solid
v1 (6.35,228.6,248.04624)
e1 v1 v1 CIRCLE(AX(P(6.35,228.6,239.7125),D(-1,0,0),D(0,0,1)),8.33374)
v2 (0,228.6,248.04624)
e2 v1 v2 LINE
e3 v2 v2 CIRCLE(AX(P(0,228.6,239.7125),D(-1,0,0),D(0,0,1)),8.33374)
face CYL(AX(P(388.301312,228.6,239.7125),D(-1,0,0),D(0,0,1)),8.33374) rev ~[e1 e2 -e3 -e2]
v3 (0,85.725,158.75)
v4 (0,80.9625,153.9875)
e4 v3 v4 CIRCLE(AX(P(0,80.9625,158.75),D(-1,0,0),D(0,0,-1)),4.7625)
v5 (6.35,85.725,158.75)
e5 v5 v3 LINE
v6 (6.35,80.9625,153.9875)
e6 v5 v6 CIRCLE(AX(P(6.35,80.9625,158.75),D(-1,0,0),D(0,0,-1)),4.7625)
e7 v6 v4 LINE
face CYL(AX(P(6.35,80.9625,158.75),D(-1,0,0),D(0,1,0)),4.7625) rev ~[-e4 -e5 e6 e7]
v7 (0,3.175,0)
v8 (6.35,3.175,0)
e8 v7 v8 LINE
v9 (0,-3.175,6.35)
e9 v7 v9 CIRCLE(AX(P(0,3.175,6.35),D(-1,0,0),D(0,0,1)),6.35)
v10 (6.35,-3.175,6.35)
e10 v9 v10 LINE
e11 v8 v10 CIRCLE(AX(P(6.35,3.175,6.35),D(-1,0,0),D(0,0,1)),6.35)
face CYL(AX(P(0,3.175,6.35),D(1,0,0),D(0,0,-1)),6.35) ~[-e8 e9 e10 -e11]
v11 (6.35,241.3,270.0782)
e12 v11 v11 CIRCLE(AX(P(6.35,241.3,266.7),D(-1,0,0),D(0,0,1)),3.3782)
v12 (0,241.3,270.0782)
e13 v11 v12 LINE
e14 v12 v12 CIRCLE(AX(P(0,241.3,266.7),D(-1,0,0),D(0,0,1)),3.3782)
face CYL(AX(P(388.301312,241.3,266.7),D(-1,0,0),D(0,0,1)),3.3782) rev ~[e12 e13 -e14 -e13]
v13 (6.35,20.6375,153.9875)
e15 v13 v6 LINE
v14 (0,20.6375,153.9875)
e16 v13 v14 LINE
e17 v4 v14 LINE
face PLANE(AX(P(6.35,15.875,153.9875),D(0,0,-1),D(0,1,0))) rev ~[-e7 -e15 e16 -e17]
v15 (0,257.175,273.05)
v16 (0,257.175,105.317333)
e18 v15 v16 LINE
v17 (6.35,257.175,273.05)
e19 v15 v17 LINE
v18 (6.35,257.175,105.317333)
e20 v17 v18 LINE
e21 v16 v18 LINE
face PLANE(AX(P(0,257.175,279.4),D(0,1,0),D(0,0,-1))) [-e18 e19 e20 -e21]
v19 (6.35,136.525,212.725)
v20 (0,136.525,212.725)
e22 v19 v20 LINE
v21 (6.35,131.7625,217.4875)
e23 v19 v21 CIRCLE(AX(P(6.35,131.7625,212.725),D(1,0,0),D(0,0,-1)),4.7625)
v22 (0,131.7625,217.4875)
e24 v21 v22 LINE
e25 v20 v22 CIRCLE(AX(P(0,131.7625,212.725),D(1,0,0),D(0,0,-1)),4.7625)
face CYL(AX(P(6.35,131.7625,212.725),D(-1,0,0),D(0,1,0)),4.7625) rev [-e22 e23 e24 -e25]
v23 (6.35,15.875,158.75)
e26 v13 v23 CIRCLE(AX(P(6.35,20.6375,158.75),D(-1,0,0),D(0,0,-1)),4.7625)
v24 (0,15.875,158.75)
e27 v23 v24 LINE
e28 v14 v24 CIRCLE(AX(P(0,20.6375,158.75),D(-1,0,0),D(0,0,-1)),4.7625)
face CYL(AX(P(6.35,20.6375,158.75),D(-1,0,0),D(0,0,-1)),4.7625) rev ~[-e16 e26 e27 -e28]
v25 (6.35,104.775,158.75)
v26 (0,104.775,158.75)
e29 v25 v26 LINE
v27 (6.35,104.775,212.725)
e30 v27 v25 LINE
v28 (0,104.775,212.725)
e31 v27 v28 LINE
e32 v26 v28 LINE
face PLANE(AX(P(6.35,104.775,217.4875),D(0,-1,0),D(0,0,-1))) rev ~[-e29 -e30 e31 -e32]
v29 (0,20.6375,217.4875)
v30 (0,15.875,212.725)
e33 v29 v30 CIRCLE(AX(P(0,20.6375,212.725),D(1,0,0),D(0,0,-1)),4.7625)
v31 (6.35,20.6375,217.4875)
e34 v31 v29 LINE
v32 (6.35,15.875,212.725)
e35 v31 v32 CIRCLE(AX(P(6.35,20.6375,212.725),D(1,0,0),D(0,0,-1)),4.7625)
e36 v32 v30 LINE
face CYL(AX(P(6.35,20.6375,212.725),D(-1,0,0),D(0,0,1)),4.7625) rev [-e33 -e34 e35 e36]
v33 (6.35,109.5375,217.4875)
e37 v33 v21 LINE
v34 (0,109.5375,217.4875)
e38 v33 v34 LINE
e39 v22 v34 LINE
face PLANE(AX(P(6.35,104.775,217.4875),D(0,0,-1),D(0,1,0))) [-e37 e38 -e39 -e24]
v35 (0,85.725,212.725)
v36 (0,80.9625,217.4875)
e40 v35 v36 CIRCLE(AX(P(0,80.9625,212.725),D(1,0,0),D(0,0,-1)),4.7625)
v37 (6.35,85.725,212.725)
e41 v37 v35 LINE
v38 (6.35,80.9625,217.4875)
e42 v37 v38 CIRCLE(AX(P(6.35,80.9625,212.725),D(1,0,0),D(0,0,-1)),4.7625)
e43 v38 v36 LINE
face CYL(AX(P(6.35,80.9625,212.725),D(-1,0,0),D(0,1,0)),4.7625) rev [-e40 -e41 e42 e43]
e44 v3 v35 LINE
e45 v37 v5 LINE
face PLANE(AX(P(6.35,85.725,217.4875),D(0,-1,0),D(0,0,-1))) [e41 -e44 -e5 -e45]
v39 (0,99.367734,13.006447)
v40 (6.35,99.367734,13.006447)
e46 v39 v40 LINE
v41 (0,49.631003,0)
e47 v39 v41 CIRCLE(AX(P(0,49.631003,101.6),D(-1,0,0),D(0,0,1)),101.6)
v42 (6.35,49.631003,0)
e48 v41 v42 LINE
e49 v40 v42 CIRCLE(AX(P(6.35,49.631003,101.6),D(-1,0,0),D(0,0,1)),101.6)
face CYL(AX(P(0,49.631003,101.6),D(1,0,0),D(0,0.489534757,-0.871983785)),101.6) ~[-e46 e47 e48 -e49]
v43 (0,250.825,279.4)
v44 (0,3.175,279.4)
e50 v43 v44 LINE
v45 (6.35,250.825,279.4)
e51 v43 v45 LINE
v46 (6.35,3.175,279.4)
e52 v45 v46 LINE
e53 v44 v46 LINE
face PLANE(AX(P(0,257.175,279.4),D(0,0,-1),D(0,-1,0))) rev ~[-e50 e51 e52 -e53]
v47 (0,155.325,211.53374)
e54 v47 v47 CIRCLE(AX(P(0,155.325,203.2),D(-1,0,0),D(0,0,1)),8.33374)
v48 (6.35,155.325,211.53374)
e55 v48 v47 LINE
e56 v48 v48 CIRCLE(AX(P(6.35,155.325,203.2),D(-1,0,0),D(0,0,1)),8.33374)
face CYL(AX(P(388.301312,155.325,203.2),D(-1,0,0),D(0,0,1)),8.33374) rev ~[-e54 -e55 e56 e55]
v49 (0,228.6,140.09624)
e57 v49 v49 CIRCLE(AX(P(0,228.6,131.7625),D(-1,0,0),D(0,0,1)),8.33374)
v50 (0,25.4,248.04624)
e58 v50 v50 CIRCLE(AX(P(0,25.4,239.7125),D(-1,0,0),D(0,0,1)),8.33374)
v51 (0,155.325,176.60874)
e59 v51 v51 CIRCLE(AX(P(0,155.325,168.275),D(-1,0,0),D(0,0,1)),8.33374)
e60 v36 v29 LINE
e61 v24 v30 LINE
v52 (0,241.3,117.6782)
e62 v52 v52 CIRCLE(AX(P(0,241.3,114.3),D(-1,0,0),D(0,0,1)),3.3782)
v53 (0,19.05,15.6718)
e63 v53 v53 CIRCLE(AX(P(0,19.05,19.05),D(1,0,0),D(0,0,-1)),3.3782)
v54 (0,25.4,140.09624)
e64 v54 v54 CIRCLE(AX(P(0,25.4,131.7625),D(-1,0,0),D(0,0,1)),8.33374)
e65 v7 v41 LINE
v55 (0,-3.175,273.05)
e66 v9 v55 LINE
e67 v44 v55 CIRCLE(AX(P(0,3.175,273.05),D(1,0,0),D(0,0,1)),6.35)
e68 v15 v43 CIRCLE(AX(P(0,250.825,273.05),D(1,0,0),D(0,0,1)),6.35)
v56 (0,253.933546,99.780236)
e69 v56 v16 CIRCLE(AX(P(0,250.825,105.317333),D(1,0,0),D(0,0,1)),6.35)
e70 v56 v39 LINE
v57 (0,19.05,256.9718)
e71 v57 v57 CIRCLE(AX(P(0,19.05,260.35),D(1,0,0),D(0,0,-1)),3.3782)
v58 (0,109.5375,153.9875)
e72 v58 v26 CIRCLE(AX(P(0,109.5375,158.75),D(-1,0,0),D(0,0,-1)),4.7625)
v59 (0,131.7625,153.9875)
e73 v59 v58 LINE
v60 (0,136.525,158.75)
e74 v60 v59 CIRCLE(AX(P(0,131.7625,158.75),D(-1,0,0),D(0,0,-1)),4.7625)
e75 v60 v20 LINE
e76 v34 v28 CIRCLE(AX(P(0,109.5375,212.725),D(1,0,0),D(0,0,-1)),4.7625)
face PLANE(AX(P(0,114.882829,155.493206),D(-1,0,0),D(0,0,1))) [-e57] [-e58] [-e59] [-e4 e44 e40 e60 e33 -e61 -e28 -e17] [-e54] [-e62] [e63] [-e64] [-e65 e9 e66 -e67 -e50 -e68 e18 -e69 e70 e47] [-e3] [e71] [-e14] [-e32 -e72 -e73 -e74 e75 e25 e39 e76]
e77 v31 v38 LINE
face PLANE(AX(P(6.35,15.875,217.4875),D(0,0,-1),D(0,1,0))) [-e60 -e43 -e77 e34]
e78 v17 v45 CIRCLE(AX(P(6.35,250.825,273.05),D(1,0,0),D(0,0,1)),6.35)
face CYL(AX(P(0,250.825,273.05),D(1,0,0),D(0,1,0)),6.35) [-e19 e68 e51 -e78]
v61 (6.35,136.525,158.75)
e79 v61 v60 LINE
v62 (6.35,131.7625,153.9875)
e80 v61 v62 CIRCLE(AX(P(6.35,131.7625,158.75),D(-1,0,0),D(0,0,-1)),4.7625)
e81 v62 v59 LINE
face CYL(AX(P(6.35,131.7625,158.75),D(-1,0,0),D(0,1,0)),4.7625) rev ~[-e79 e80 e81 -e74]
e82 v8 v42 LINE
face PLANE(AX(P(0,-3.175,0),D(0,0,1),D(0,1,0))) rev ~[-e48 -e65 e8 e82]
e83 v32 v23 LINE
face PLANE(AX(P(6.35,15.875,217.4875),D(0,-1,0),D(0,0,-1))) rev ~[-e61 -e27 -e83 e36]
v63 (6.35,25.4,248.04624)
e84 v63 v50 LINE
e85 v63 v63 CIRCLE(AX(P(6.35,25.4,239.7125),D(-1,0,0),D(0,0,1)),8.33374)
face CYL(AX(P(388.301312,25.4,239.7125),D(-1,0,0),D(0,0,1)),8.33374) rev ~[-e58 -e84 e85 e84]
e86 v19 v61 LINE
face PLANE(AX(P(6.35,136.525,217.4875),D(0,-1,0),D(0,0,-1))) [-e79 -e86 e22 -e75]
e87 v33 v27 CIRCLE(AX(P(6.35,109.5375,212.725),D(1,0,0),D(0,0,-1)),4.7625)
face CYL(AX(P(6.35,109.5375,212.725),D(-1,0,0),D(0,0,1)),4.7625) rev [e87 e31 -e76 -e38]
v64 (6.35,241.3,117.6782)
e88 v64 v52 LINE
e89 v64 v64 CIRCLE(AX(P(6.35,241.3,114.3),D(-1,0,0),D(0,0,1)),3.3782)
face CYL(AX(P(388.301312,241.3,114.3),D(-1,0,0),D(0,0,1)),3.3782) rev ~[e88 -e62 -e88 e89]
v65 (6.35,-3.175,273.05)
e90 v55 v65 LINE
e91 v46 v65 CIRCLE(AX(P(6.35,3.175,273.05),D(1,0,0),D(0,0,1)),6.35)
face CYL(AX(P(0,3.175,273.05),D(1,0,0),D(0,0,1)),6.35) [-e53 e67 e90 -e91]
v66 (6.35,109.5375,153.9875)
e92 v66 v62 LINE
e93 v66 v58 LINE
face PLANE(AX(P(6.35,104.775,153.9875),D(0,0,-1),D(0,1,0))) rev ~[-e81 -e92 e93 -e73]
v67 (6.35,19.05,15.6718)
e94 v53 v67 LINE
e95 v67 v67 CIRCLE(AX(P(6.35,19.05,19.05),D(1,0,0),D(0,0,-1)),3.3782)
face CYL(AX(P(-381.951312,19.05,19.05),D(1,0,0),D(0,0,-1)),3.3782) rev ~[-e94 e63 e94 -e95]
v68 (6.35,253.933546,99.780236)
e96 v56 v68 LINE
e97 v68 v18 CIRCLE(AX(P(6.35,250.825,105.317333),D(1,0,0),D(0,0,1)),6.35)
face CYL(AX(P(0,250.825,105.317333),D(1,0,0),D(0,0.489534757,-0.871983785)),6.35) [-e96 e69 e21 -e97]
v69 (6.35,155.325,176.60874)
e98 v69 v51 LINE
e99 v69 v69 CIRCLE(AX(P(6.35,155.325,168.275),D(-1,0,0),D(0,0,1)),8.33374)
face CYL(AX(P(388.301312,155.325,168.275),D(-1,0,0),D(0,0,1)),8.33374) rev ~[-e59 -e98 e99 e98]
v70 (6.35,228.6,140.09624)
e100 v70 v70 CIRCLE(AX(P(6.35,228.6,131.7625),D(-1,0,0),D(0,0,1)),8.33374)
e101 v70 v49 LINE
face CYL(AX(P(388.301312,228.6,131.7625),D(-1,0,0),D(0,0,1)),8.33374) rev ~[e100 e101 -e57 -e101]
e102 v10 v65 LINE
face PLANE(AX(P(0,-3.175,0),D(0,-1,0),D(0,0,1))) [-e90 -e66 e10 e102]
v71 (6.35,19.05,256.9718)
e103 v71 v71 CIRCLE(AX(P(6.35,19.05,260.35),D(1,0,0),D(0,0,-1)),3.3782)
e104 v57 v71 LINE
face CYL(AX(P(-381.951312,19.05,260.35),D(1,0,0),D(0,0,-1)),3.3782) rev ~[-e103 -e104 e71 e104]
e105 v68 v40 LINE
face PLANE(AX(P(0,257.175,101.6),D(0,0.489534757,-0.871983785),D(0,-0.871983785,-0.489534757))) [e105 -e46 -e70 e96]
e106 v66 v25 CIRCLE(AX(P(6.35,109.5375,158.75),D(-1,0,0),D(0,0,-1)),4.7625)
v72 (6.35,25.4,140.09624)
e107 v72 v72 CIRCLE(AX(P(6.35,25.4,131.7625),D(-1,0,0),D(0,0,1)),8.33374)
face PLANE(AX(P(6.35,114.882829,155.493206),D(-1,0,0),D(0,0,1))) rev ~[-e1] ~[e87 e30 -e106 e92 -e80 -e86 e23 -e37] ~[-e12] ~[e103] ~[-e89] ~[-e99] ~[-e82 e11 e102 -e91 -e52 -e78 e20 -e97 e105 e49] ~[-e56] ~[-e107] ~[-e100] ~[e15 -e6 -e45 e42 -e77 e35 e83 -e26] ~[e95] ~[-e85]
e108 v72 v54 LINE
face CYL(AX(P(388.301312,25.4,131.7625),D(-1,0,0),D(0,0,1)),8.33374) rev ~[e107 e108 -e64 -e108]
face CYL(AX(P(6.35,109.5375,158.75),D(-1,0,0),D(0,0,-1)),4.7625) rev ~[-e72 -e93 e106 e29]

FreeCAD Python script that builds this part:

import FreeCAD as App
import Part
import Sketcher
from FreeCAD import Vector
Q = App.Units.Quantity


def edges_at(feature, points):
    """Names of the edges that pass closest to the given points."""
    edges = feature.Shape.Edges
    near = lambda p: min(range(len(edges)), key=lambda i: edges[i].distToShape(Part.Vertex(*p))[0])
    return sorted({f"Edge{near(p) + 1}" for p in points})


def add_polygon(sketch, points):
    """Adds a closed chain of lines whose ends are joined by coincident constraints."""
    first, n = sketch.GeometryCount, len(points)
    for a, b in zip(points, points[1:] + points[:1]):
        sketch.addGeometry(Part.LineSegment(App.Vector(*a, 0), App.Vector(*b, 0)), False)
    for i in range(n):
        sketch.addConstraint(Sketcher.Constraint("Coincident", first + i, 2, first + (i + 1) % n, 1))

doc = App.newDocument("Part")
body = doc.addObject("PartDesign::Body", "Body")

# Sketch on YZ plane
sketch1 = body.newObject("Sketcher::SketchObject", "Sketch")
sketch1.AttachmentSupport = (doc.getObject("YZ_Plane"), [""])
sketch1.MapMode = "FlatFace"
add_polygon(sketch1, [(257, 279), (-3, 279), (-3, 0), (76, 0), (257, 102)])  # lines 0-4
sketch1.addConstraint(Sketcher.Constraint("Horizontal", 0))
sketch1.addConstraint(Sketcher.Constraint("Vertical", 1))
sketch1.addConstraint(Sketcher.Constraint("Horizontal", 2))
sketch1.addConstraint(Sketcher.Constraint("Vertical", 4))
sketch1.addConstraint(Sketcher.Constraint("PointOnObject", 1, 2, -1))
sketch1.addConstraint(Sketcher.Constraint("DistanceY", 1, 2, 1, 1, Q("11 in")))
sketch1.addConstraint(Sketcher.Constraint("DistanceY", 4, 1, 4, 2, Q("7 in")))
sketch1.addConstraint(Sketcher.Constraint("DistanceX", -1, 1, 2, 2, Q("3 in")))
sketch1.addConstraint(Sketcher.Constraint("DistanceX", 0, 2, 0, 1, Q("10.25 in")))
sketch1.addConstraint(Sketcher.Constraint("DistanceX", 2, 1, 2, 2, Q("3.125 in")))
pad1 = body.newObject("PartDesign::Pad", "Pad")
pad1.Profile = sketch1
pad1.Length = Q("0.25 in")

# Sketch on YZ plane
sketch2 = body.newObject("Sketcher::SketchObject", "Sketch001")
sketch2.AttachmentSupport = (doc.getObject("YZ_Plane"), [""])
sketch2.MapMode = "FlatFace"
sketch2.AttachmentOffset = App.Placement(Vector(0, 0, 0.25 * 25.4), App.Rotation())
sketch2.addGeometry(Part.Circle(Vector(241.3, 266.7, 0), Vector(0, 0, 1), 3.4), False)
sketch2.addGeometry(Part.Circle(Vector(241.3, 114.3, 0), Vector(0, 0, 1), 3.4), False)
sketch2.addConstraint(Sketcher.Constraint("Equal", 0, 1))
sketch2.addConstraint(Sketcher.Constraint("Vertical", 0, 3, 1, 3))
sketch2.addConstraint(Sketcher.Constraint("Diameter", 0, Q("0.266 in")))
sketch2.addConstraint(Sketcher.Constraint("DistanceY", 1, 3, 0, 3, Q("6 in")))
sketch2.addConstraint(Sketcher.Constraint("DistanceX", -1, 1, 0, 3, Q("9.5 in")))
sketch2.addConstraint(Sketcher.Constraint("DistanceY", -1, 1, 0, 3, Q("10.5 in")))
doc.recompute()
hole = body.newObject("PartDesign::Hole", "Hole")
hole.Profile = sketch2
hole.ThreadType = "None"
hole.Diameter = Q("0.266 in")
hole.DepthType = "ThroughAll"

# Sketch on YZ plane
sketch3 = body.newObject("Sketcher::SketchObject", "Sketch002")
sketch3.AttachmentSupport = (doc.getObject("YZ_Plane"), [""])
sketch3.MapMode = "FlatFace"
sketch3.addGeometry(Part.Circle(Vector(19.1, 19.1, 0), Vector(0, 0, 1), 3.4), False)
sketch3.addGeometry(Part.Circle(Vector(19.1, 260.4, 0), Vector(0, 0, 1), 3.4), False)
sketch3.addConstraint(Sketcher.Constraint("Equal", 0, 1))
sketch3.addConstraint(Sketcher.Constraint("Vertical", 0, 3, 1, 3))
sketch3.addConstraint(Sketcher.Constraint("Diameter", 0, Q("0.266 in")))
sketch3.addConstraint(Sketcher.Constraint("DistanceY", 0, 3, 1, 3, Q("9.5 in")))
sketch3.addConstraint(Sketcher.Constraint("DistanceX", -1, 1, 0, 3, Q("0.75 in")))
sketch3.addConstraint(Sketcher.Constraint("DistanceY", -1, 1, 0, 3, Q("0.75 in")))
doc.recompute()
hole2 = body.newObject("PartDesign::Hole", "Hole001")
hole2.Profile = sketch3
hole2.ThreadType = "None"
hole2.Diameter = Q("0.266 in")
hole2.DepthType = "ThroughAll"
hole2.Reversed = True
doc.recompute()

fillet = body.newObject("PartDesign::Fillet", "Fillet")
fillet.Base = (hole2, edges_at(hole2, [(3.175, 76.2, 0)]))
fillet.Radius = Q("4 in")

# Sketch on YZ plane
sketch4 = body.newObject("Sketcher::SketchObject", "Sketch003")
sketch4.AttachmentSupport = (doc.getObject("YZ_Plane"), [""])
sketch4.MapMode = "FlatFace"
sketch4.AttachmentOffset = App.Placement(Vector(0, 0, 0.25 * 25.4), App.Rotation())
add_polygon(sketch4, [(86, 217), (16, 217), (16, 154), (86, 154)])  # lines 0-3
add_polygon(sketch4, [(137, 217), (105, 217), (105, 154), (137, 154)])  # lines 4-7
sketch4.addConstraint(Sketcher.Constraint("Horizontal", 0))
sketch4.addConstraint(Sketcher.Constraint("Vertical", 1))
sketch4.addConstraint(Sketcher.Constraint("Horizontal", 2))
sketch4.addConstraint(Sketcher.Constraint("Vertical", 3))
sketch4.addConstraint(Sketcher.Constraint("Horizontal", 4))
sketch4.addConstraint(Sketcher.Constraint("Vertical", 5))
sketch4.addConstraint(Sketcher.Constraint("Horizontal", 6))
sketch4.addConstraint(Sketcher.Constraint("Vertical", 7))
sketch4.addConstraint(Sketcher.Constraint("Horizontal", 3, 2, 4, 2))
sketch4.addConstraint(Sketcher.Constraint("Horizontal", 2, 2, 5, 2))
sketch4.addConstraint(Sketcher.Constraint("DistanceY", 1, 2, 1, 1, Q("2.5 in")))
sketch4.addConstraint(Sketcher.Constraint("DistanceX", 2, 2, 6, 2, Q("2 in")))
sketch4.addConstraint(Sketcher.Constraint("DistanceX", 0, 2, 0, 1, Q("2.75 in")))
sketch4.addConstraint(Sketcher.Constraint("DistanceX", 4, 2, 4, 1, Q("1.25 in")))
sketch4.addConstraint(Sketcher.Constraint("DistanceX", -1, 1, 0, 2, Q("0.625 in")))
sketch4.addConstraint(Sketcher.Constraint("DistanceY", -1, 1, 0, 2, Q("8.5625 in")))
pocket1 = body.newObject("PartDesign::Pocket", "Pocket")
pocket1.Profile = sketch4
pocket1.Type = "ThroughAll"

# Sketch on YZ plane
sketch5 = body.newObject("Sketcher::SketchObject", "Sketch004")
sketch5.AttachmentSupport = (doc.getObject("YZ_Plane"), [""])
sketch5.MapMode = "FlatFace"
sketch5.AttachmentOffset = App.Placement(Vector(0, 0, 0.25 * 25.4), App.Rotation())
sketch5.addGeometry(Part.Circle(Vector(229, 240, 0), Vector(0, 0, 1), 8), False)
sketch5.addGeometry(Part.Circle(Vector(229, 132, 0), Vector(0, 0, 1), 8), False)
sketch5.addGeometry(Part.Circle(Vector(25, 240, 0), Vector(0, 0, 1), 8), False)
sketch5.addGeometry(Part.Circle(Vector(25, 132, 0), Vector(0, 0, 1), 8), False)
sketch5.addGeometry(Part.Circle(Vector(155, 203, 0), Vector(0, 0, 1), 8), False)
sketch5.addGeometry(Part.Circle(Vector(155, 168, 0), Vector(0, 0, 1), 8), False)
sketch5.addConstraint(Sketcher.Constraint("Equal", 0, 1))
sketch5.addConstraint(Sketcher.Constraint("Equal", 1, 2))
sketch5.addConstraint(Sketcher.Constraint("Equal", 2, 3))
sketch5.addConstraint(Sketcher.Constraint("Equal", 3, 4))
sketch5.addConstraint(Sketcher.Constraint("Equal", 4, 5))
sketch5.addConstraint(Sketcher.Constraint("Horizontal", 0, 3, 2, 3))
sketch5.addConstraint(Sketcher.Constraint("Horizontal", 1, 3, 3, 3))
sketch5.addConstraint(Sketcher.Constraint("Vertical", 0, 3, 1, 3))
sketch5.addConstraint(Sketcher.Constraint("Vertical", 2, 3, 3, 3))
sketch5.addConstraint(Sketcher.Constraint("Vertical", 4, 3, 5, 3))
sketch5.addConstraint(Sketcher.Constraint("DistanceX", -1, 1, 0, 3, Q("9 in")))
sketch5.addConstraint(Sketcher.Constraint("DistanceX", -1, 1, 2, 3, Q("1 in")))
sketch5.addConstraint(Sketcher.Constraint("DistanceY", -1, 1, 4, 3, Q("8 in")))
sketch5.addConstraint(Sketcher.Constraint("Diameter", 0, Q("0.6562 in")))
sketch5.addConstraint(Sketcher.Constraint("DistanceY", 1, 3, 0, 3, Q("4.25 in")))
sketch5.addConstraint(Sketcher.Constraint("DistanceY", -1, 1, 0, 3, Q("9.4375 in")))
sketch5.addConstraint(Sketcher.Constraint("DistanceY", -1, 1, 5, 3, Q("6.625 in")))
sketch5.addConstraint(Sketcher.Constraint("DistanceX", -1, 1, 4, 3, Q("155.325 mm")))
doc.recompute()
hole3 = body.newObject("PartDesign::Hole", "Hole002")
hole3.Profile = sketch5
hole3.ThreadType = "None"
hole3.Diameter = Q("0.6562 in")
hole3.DepthType = "ThroughAll"
doc.recompute()

fillet2 = body.newObject("PartDesign::Fillet", "Fillet001")
fillet2.Base = (hole3, edges_at(hole3, [
    (3.175, -3.175, 0),
    (3.175, -3.175, 279.4),
    (3.175, 257.175, 279.4),
    (3.175, 257.175, 101.6),
]))
fillet2.Radius = Q("0.25 in")
doc.recompute()

fillet3 = body.newObject("PartDesign::Fillet", "Fillet002")
fillet3.Base = (fillet2, edges_at(fillet2, [
    (3.175, 15.875, 217.488),
    (3.175, 85.725, 217.488),
    (3.175, 85.725, 153.988),
    (3.175, 15.875, 153.988),
    (3.175, 104.775, 217.488),
    (3.175, 136.525, 217.488),
    (3.175, 136.525, 153.988),
    (3.175, 104.775, 153.988),
]))
fillet3.Radius = Q("0.1875 in")

doc.recompute()
